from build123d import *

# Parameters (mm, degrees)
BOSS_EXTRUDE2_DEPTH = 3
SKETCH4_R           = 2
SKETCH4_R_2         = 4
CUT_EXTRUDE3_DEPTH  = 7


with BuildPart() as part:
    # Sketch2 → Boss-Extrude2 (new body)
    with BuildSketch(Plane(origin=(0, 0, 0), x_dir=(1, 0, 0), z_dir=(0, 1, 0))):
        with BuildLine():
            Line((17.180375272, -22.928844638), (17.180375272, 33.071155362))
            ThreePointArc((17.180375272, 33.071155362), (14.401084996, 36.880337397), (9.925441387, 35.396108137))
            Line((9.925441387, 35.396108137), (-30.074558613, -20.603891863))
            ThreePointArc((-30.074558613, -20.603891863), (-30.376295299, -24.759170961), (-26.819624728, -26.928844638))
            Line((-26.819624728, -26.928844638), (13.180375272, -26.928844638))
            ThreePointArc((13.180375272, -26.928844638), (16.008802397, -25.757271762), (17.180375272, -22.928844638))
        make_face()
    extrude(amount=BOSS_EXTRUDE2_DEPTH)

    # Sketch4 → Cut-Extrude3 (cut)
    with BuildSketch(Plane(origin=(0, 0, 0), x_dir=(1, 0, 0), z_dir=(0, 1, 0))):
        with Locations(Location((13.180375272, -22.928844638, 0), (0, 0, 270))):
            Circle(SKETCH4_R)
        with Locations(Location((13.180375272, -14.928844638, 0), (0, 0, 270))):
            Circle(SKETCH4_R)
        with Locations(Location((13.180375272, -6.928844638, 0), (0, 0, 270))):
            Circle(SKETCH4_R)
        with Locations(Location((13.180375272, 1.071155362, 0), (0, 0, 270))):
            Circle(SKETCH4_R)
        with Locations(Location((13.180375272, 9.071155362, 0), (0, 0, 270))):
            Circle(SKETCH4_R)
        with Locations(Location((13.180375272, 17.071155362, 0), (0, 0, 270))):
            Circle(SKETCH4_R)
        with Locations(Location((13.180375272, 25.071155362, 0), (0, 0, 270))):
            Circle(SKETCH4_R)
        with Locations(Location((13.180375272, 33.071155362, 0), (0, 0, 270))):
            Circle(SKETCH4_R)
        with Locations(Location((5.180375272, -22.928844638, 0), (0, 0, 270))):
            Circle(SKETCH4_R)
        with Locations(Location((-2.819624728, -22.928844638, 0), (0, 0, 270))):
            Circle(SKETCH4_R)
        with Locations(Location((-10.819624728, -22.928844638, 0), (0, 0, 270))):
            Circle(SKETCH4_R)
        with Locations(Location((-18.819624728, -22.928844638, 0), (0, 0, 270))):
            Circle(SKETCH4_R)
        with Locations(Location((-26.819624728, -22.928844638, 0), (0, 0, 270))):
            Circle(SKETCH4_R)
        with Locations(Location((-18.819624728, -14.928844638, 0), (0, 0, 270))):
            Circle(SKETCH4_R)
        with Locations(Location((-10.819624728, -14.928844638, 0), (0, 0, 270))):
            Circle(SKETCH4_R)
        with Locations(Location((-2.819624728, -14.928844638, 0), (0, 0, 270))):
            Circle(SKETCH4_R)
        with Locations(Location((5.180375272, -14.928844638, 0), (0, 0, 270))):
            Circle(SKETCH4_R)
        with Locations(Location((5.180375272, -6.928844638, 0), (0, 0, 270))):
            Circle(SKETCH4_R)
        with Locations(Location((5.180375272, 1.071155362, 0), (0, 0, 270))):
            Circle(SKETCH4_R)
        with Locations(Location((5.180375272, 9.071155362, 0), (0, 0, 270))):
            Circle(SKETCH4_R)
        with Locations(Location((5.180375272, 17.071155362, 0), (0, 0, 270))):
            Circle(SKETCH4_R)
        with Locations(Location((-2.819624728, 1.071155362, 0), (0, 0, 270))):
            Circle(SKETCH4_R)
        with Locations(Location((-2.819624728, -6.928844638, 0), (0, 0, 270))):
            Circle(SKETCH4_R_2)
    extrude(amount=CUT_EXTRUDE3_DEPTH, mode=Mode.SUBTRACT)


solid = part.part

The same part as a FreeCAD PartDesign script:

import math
import FreeCAD as App
import Part
import Sketcher
from FreeCAD import Vector

doc = App.newDocument("Part")
body = doc.addObject("PartDesign::Body", "Body")

sketch1 = body.newObject("Sketcher::SketchObject", "Sketch")
sketch1.AttachmentSupport = (doc.getObject("XZ_Plane"), [""])
sketch1.MapMode = "FlatFace"
sketch1.addGeometry(Part.LineSegment(Vector(17.180375, 22.928845, 0), Vector(17.180375, -33.071155, 0)), False)
sketch1.addGeometry(Part.ArcOfCircle(Part.Circle(Vector(13.180375, -33.071155, 0), Vector(0, 0, 1), 4), math.radians(-144.462322), math.radians(0)), False)
sketch1.addGeometry(Part.LineSegment(Vector(9.925441, -35.396108, 0), Vector(-30.074559, 20.603892, 0)), False)
sketch1.addGeometry(Part.ArcOfCircle(Part.Circle(Vector(-26.819625, 22.928845, 0), Vector(0, 0, 1), 4), math.radians(90), math.radians(215.537678)), False)
sketch1.addGeometry(Part.LineSegment(Vector(-26.819625, 26.928845, 0), Vector(13.180375, 26.928845, 0)), False)
sketch1.addGeometry(Part.ArcOfCircle(Part.Circle(Vector(13.180375, 22.928845, 0), Vector(0, 0, 1), 4), math.radians(0), math.radians(90)), False)
sketch1.addConstraint(Sketcher.Constraint("Tangent", 0, 2, 1, 2))
sketch1.addConstraint(Sketcher.Constraint("Tangent", 1, 1, 2, 1))
sketch1.addConstraint(Sketcher.Constraint("Tangent", 2, 2, 3, 2))
sketch1.addConstraint(Sketcher.Constraint("Tangent", 3, 1, 4, 1))
sketch1.addConstraint(Sketcher.Constraint("Tangent", 4, 2, 5, 2))
sketch1.addConstraint(Sketcher.Constraint("Tangent", 5, 1, 0, 1))
sketch1.addConstraint(Sketcher.Constraint("Vertical", 0))
sketch1.addConstraint(Sketcher.Constraint("Horizontal", 4))
sketch1.addConstraint(Sketcher.Constraint("Equal", 1, 3))
sketch1.addConstraint(Sketcher.Constraint("Equal", 3, 5))
sketch1.addConstraint(Sketcher.Constraint("Radius", 1, 4.0))
sketch1.addConstraint(Sketcher.Constraint("DistanceX", 4, 1, 4, 2, 40.0))
sketch1.addConstraint(Sketcher.Constraint("DistanceY", 0, 2, 0, 1, 56.0))
sketch1.addConstraint(Sketcher.Constraint("DistanceX", -1, 1, 1, 1, 9.925441))
sketch1.addConstraint(Sketcher.Constraint("DistanceY", 1, 1, -1, 1, 35.396108))
pad1 = body.newObject("PartDesign::Pad", "Pad")
pad1.Profile = sketch1
pad1.Length = 3
pad1.Reversed = True

sketch2 = body.newObject("Sketcher::SketchObject", "Sketch001")
sketch2.AttachmentSupport = (doc.getObject("XZ_Plane"), [""])
sketch2.MapMode = "FlatFace"
sketch2.addGeometry(Part.Circle(Vector(13.180375, 22.928845, 0), Vector(0, 0, 1), 2), False)
sketch2.addGeometry(Part.Circle(Vector(13.180375, 14.928845, 0), Vector(0, 0, 1), 2), False)
sketch2.addGeometry(Part.Circle(Vector(13.180375, 6.928845, 0), Vector(0, 0, 1), 2), False)
sketch2.addGeometry(Part.Circle(Vector(13.180375, -1.071155, 0), Vector(0, 0, 1), 2), False)
sketch2.addGeometry(Part.Circle(Vector(13.180375, -9.071155, 0), Vector(0, 0, 1), 2), False)
sketch2.addGeometry(Part.Circle(Vector(13.180375, -17.071155, 0), Vector(0, 0, 1), 2), False)
sketch2.addGeometry(Part.Circle(Vector(13.180375, -25.071155, 0), Vector(0, 0, 1), 2), False)
sketch2.addGeometry(Part.Circle(Vector(13.180375, -33.071155, 0), Vector(0, 0, 1), 2), False)
sketch2.addGeometry(Part.Circle(Vector(5.180375, 22.928845, 0), Vector(0, 0, 1), 2), False)
sketch2.addGeometry(Part.Circle(Vector(-2.819625, 22.928845, 0), Vector(0, 0, 1), 2), False)
sketch2.addGeometry(Part.Circle(Vector(-10.819625, 22.928845, 0), Vector(0, 0, 1), 2), False)
sketch2.addGeometry(Part.Circle(Vector(-18.819625, 22.928845, 0), Vector(0, 0, 1), 2), False)
sketch2.addGeometry(Part.Circle(Vector(-26.819625, 22.928845, 0), Vector(0, 0, 1), 2), False)
sketch2.addGeometry(Part.Circle(Vector(-18.819625, 14.928845, 0), Vector(0, 0, 1), 2), False)
sketch2.addGeometry(Part.Circle(Vector(-10.819625, 14.928845, 0), Vector(0, 0, 1), 2), False)
sketch2.addGeometry(Part.Circle(Vector(-2.819625, 14.928845, 0), Vector(0, 0, 1), 2), False)
sketch2.addGeometry(Part.Circle(Vector(5.180375, 14.928845, 0), Vector(0, 0, 1), 2), False)
sketch2.addGeometry(Part.Circle(Vector(5.180375, 6.928845, 0), Vector(0, 0, 1), 2), False)
sketch2.addGeometry(Part.Circle(Vector(5.180375, -1.071155, 0), Vector(0, 0, 1), 2), False)
sketch2.addGeometry(Part.Circle(Vector(5.180375, -9.071155, 0), Vector(0, 0, 1), 2), False)
sketch2.addGeometry(Part.Circle(Vector(5.180375, -17.071155, 0), Vector(0, 0, 1), 2), False)
sketch2.addGeometry(Part.Circle(Vector(-2.819625, -1.071155, 0), Vector(0, 0, 1), 2), False)
sketch2.addGeometry(Part.Circle(Vector(-2.819625, 6.928845, 0), Vector(0, 0, 1), 4), False)
sketch2.addConstraint(Sketcher.Constraint("Equal", 0, 1))
sketch2.addConstraint(Sketcher.Constraint("Equal", 1, 2))
sketch2.addConstraint(Sketcher.Constraint("Equal", 2, 3))
sketch2.addConstraint(Sketcher.Constraint("Equal", 3, 4))
sketch2.addConstraint(Sketcher.Constraint("Equal", 4, 5))
sketch2.addConstraint(Sketcher.Constraint("Equal", 5, 6))
sketch2.addConstraint(Sketcher.Constraint("Equal", 6, 7))
sketch2.addConstraint(Sketcher.Constraint("Equal", 7, 8))
sketch2.addConstraint(Sketcher.Constraint("Equal", 8, 9))
sketch2.addConstraint(Sketcher.Constraint("Equal", 9, 10))
sketch2.addConstraint(Sketcher.Constraint("Equal", 10, 11))
sketch2.addConstraint(Sketcher.Constraint("Equal", 11, 12))
sketch2.addConstraint(Sketcher.Constraint("Equal", 12, 13))
sketch2.addConstraint(Sketcher.Constraint("Equal", 13, 14))
sketch2.addConstraint(Sketcher.Constraint("Equal", 14, 15))
sketch2.addConstraint(Sketcher.Constraint("Equal", 15, 16))
sketch2.addConstraint(Sketcher.Constraint("Equal", 16, 17))
sketch2.addConstraint(Sketcher.Constraint("Equal", 17, 18))
sketch2.addConstraint(Sketcher.Constraint("Equal", 18, 19))
sketch2.addConstraint(Sketcher.Constraint("Equal", 19, 20))
sketch2.addConstraint(Sketcher.Constraint("Equal", 20, 21))
sketch2.addConstraint(Sketcher.Constraint("Horizontal", 0, 3, 8, 3))
sketch2.addConstraint(Sketcher.Constraint("Horizontal", 8, 3, 9, 3))
sketch2.addConstraint(Sketcher.Constraint("Horizontal", 9, 3, 10, 3))
sketch2.addConstraint(Sketcher.Constraint("Horizontal", 10, 3, 11, 3))
sketch2.addConstraint(Sketcher.Constraint("Horizontal", 11, 3, 12, 3))
sketch2.addConstraint(Sketcher.Constraint("Horizontal", 1, 3, 13, 3))
sketch2.addConstraint(Sketcher.Constraint("Horizontal", 13, 3, 14, 3))
sketch2.addConstraint(Sketcher.Constraint("Horizontal", 14, 3, 15, 3))
sketch2.addConstraint(Sketcher.Constraint("Horizontal", 15, 3, 16, 3))
sketch2.addConstraint(Sketcher.Constraint("Horizontal", 2, 3, 17, 3))
sketch2.addConstraint(Sketcher.Constraint("Horizontal", 3, 3, 18, 3))
sketch2.addConstraint(Sketcher.Constraint("Horizontal", 4, 3, 19, 3))
sketch2.addConstraint(Sketcher.Constraint("Horizontal", 5, 3, 20, 3))
sketch2.addConstraint(Sketcher.Constraint("Horizontal", 18, 3, 21, 3))
sketch2.addConstraint(Sketcher.Constraint("Horizontal", 17, 3, 22, 3))
sketch2.addConstraint(Sketcher.Constraint("Vertical", 0, 3, 1, 3))
sketch2.addConstraint(Sketcher.Constraint("Vertical", 1, 3, 2, 3))
sketch2.addConstraint(Sketcher.Constraint("Vertical", 2, 3, 3, 3))
sketch2.addConstraint(Sketcher.Constraint("Vertical", 3, 3, 4, 3))
sketch2.addConstraint(Sketcher.Constraint("Vertical", 4, 3, 5, 3))
sketch2.addConstraint(Sketcher.Constraint("Vertical", 5, 3, 6, 3))
sketch2.addConstraint(Sketcher.Constraint("Vertical", 6, 3, 7, 3))
sketch2.addConstraint(Sketcher.Constraint("Vertical", 11, 3, 13, 3))
sketch2.addConstraint(Sketcher.Constraint("Vertical", 10, 3, 14, 3))
sketch2.addConstraint(Sketcher.Constraint("Vertical", 9, 3, 15, 3))
sketch2.addConstraint(Sketcher.Constraint("Vertical", 8, 3, 16, 3))
sketch2.addConstraint(Sketcher.Constraint("Vertical", 16, 3, 17, 3))
sketch2.addConstraint(Sketcher.Constraint("Vertical", 17, 3, 18, 3))
sketch2.addConstraint(Sketcher.Constraint("Vertical", 18, 3, 19, 3))
sketch2.addConstraint(Sketcher.Constraint("Vertical", 19, 3, 20, 3))
sketch2.addConstraint(Sketcher.Constraint("Vertical", 15, 3, 21, 3))
sketch2.addConstraint(Sketcher.Constraint("Vertical", 21, 3, 22, 3))
sketch2.addConstraint(Sketcher.Constraint("Diameter", 0, 4.0))
sketch2.addConstraint(Sketcher.Constraint("Diameter", 22, 8.0))
sketch2.addConstraint(Sketcher.Constraint("DistanceY", 1, 3, 0, 3, 8.0))
sketch2.addConstraint(Sketcher.Constraint("DistanceY", 2, 3, 1, 3, 8.0))
sketch2.addConstraint(Sketcher.Constraint("DistanceY", 3, 3, 2, 3, 8.0))
sketch2.addConstraint(Sketcher.Constraint("DistanceY", 4, 3, 3, 3, 8.0))
sketch2.addConstraint(Sketcher.Constraint("DistanceY", 5, 3, 4, 3, 8.0))
sketch2.addConstraint(Sketcher.Constraint("DistanceY", 6, 3, 5, 3, 8.0))
sketch2.addConstraint(Sketcher.Constraint("DistanceY", 7, 3, 6, 3, 8.0))
sketch2.addConstraint(Sketcher.Constraint("DistanceX", 8, 3, 0, 3, 8.0))
sketch2.addConstraint(Sketcher.Constraint("DistanceX", 9, 3, 8, 3, 8.0))
sketch2.addConstraint(Sketcher.Constraint("DistanceX", 10, 3, 9, 3, 8.0))
sketch2.addConstraint(Sketcher.Constraint("DistanceX", 11, 3, 10, 3, 8.0))
sketch2.addConstraint(Sketcher.Constraint("DistanceX", 12, 3, 11, 3, 8.0))
sketch2.addConstraint(Sketcher.Constraint("DistanceX", -1, 1, 0, 3, 13.180375))
sketch2.addConstraint(Sketcher.Constraint("DistanceY", -1, 1, 0, 3, 22.928845))
pocket1 = body.newObject("PartDesign::Pocket", "Pocket")
pocket1.Profile = sketch2
pocket1.Length = 7

doc.recompute()
